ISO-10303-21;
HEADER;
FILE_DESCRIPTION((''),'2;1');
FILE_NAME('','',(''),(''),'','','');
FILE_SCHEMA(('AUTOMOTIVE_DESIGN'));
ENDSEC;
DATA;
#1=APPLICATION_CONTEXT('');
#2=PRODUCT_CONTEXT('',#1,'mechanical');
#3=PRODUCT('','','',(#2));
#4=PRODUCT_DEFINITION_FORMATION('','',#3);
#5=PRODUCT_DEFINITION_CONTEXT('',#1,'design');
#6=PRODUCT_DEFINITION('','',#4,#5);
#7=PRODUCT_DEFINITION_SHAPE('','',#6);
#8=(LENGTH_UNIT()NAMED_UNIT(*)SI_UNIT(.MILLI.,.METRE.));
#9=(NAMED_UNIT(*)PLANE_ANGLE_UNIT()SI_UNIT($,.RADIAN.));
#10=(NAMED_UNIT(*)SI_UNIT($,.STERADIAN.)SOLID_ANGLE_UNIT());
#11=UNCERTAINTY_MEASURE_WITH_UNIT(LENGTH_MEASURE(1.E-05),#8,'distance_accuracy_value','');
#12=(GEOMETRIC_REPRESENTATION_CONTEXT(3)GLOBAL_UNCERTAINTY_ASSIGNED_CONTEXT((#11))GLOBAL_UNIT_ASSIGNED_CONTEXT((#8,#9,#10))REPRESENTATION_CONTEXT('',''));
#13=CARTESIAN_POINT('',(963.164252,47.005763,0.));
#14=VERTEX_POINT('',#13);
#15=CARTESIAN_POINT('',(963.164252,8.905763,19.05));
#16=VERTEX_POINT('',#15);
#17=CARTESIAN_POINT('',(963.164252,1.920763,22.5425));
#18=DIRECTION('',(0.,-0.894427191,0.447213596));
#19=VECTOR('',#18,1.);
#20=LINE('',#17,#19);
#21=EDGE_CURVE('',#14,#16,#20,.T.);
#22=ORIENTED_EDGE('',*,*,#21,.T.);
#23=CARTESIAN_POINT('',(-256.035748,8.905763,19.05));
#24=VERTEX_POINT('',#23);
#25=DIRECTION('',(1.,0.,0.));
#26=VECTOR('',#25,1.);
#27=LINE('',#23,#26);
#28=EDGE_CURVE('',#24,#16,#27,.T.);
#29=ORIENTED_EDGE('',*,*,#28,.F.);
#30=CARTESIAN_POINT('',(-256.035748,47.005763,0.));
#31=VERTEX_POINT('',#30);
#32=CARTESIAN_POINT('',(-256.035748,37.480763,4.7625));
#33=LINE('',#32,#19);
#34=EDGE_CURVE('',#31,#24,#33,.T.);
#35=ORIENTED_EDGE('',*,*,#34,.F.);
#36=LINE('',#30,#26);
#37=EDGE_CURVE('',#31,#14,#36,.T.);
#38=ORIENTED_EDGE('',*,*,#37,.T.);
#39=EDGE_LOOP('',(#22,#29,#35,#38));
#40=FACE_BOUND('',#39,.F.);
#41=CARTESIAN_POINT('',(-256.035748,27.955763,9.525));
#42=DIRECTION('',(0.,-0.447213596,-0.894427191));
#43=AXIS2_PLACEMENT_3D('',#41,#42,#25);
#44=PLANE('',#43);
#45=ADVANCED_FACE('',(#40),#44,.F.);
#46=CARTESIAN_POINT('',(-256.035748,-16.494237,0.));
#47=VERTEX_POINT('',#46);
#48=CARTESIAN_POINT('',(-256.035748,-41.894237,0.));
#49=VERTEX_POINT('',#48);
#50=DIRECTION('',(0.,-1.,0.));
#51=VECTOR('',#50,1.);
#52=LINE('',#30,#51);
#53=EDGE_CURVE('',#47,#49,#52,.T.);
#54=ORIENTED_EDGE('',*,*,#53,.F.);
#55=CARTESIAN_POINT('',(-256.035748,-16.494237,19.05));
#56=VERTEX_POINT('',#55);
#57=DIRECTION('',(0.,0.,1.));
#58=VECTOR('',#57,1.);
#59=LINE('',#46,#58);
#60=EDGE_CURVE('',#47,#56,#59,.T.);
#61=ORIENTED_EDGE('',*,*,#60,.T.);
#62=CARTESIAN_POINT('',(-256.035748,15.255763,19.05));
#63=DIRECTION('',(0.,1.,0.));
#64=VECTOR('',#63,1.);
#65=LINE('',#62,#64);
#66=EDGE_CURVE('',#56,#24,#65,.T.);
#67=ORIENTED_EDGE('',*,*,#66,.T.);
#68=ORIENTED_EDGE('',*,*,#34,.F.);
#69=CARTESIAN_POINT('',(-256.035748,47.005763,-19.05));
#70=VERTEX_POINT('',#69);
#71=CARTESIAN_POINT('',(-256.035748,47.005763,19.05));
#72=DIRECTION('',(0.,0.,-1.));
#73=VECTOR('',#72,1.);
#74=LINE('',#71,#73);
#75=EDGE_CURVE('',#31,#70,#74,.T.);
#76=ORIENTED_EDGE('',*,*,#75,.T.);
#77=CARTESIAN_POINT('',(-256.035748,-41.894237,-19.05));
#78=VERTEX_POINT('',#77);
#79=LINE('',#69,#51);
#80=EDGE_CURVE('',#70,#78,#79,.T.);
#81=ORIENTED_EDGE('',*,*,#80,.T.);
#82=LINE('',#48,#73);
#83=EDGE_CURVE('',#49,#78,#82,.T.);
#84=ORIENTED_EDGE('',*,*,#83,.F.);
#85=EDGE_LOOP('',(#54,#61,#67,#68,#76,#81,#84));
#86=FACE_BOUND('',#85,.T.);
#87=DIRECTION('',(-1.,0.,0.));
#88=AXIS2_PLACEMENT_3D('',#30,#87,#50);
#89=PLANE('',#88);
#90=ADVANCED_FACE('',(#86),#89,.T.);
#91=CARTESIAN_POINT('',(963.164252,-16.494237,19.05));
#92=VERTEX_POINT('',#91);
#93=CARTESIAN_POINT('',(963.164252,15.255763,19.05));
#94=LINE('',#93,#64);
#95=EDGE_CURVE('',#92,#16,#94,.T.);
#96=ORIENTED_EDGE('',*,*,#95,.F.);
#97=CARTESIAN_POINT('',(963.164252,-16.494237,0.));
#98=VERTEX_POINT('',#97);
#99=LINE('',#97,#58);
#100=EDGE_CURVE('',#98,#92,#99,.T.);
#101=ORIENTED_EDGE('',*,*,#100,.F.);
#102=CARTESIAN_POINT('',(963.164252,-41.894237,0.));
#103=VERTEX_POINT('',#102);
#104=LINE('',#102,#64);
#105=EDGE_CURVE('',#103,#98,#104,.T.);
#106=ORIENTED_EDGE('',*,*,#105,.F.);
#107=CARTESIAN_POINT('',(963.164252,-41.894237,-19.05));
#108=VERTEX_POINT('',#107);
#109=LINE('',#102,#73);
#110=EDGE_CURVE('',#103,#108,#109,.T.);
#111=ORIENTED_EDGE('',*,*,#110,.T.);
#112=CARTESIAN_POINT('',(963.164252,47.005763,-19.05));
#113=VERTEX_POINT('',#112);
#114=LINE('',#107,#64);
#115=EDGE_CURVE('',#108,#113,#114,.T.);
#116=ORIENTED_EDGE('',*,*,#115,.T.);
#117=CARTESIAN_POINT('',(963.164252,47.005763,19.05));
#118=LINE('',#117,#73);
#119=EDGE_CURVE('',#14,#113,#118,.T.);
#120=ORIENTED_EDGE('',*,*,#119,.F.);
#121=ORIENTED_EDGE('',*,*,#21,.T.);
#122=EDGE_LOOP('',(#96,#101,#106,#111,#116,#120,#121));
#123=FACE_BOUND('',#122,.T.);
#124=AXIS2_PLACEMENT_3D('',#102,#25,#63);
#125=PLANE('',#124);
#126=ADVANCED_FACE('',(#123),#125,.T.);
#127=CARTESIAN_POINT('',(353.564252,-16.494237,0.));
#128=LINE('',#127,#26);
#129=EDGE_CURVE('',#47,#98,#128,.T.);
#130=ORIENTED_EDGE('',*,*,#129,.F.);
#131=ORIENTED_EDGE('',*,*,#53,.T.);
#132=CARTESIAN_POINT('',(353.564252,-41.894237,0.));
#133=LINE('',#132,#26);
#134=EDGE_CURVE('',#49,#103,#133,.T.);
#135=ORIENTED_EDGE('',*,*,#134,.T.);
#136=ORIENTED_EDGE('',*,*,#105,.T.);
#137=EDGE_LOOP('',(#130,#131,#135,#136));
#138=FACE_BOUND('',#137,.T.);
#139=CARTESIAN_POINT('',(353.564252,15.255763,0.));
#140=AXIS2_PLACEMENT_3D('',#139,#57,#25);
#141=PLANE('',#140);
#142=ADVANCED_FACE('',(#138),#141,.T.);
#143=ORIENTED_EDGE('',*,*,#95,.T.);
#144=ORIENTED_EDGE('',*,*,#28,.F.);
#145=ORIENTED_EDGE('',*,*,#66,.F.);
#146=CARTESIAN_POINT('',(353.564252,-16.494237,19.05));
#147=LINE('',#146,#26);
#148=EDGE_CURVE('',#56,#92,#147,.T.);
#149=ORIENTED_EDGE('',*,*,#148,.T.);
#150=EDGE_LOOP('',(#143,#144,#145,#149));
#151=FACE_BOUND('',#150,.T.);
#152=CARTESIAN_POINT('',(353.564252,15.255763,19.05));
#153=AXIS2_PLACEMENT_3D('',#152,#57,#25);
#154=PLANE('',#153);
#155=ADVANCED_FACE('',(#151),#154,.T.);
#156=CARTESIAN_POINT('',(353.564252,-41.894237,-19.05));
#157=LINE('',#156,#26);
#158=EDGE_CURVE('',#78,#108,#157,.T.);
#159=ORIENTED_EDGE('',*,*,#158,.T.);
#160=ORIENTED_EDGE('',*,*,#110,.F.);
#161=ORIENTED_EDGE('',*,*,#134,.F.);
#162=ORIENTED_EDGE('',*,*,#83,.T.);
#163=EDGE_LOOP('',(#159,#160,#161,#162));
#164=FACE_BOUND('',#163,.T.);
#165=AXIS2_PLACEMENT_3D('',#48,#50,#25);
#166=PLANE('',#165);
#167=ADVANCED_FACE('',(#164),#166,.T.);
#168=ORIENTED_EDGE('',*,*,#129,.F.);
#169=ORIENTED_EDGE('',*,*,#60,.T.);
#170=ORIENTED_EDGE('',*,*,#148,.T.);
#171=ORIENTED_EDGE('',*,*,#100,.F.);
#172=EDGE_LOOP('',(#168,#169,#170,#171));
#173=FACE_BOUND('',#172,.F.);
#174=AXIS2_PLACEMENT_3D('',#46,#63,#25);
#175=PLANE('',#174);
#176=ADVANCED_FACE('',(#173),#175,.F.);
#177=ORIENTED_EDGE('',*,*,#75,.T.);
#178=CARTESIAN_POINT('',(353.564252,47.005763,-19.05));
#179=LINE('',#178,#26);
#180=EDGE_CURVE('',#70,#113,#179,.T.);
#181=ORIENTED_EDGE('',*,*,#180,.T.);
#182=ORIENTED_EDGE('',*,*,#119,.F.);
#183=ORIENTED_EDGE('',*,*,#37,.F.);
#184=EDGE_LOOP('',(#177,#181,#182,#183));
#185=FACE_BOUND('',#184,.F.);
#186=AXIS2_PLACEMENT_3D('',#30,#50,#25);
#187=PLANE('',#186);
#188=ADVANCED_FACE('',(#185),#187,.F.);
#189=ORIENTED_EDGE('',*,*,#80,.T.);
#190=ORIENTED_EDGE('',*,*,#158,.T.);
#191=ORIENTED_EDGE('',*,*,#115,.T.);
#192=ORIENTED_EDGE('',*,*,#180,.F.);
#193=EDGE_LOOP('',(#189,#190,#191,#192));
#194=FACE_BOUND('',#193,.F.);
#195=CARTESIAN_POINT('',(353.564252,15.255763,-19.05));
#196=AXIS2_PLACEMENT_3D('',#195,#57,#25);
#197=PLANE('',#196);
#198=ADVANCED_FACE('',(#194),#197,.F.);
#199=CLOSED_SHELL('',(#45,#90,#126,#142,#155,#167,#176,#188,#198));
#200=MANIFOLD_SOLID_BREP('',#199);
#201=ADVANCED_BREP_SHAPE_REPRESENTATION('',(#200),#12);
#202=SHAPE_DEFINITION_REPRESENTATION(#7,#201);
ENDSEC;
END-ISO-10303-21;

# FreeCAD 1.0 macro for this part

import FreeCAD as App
import Part
import Sketcher

V = App.Vector
Q = App.Units.Quantity


def edges_at(feature, points):
    """Names of the edges that pass closest to the given points."""
    edges = feature.Shape.Edges
    near = lambda p: min(range(len(edges)), key=lambda i: edges[i].distToShape(Part.Vertex(*p))[0])
    return sorted({f"Edge{near(p) + 1}" for p in points})

doc = App.newDocument("Part")
body = doc.addObject("PartDesign::Body", "Body")

sketch1 = body.newObject("Sketcher::SketchObject", "Sketch")
sketch1.AttachmentSupport = (doc.getObject("XY_Plane"), [""])
sketch1.MapMode = "FlatFace"
sketch1.addGeometry([
    Part.LineSegment(V(-256.035748, 47.005763, 0), V(-256.035748, -16.494237, 0)),
    Part.LineSegment(V(-256.035748, -16.494237, 0), V(963.164252, -16.494237, 0)),
    Part.LineSegment(V(963.164252, -16.494237, 0), V(963.164252, 47.005763, 0)),
    Part.LineSegment(V(963.164252, 47.005763, 0), V(-256.035748, 47.005763, 0)),
], False)
sketch1.addConstraint([
    Sketcher.Constraint("Coincident", 0, 2, 1, 1),
    Sketcher.Constraint("Coincident", 1, 2, 2, 1),
    Sketcher.Constraint("Coincident", 2, 2, 3, 1),
    Sketcher.Constraint("Coincident", 3, 2, 0, 1),
    Sketcher.Constraint("Vertical", 0),
    Sketcher.Constraint("Horizontal", 1),
    Sketcher.Constraint("Vertical", 2),
    Sketcher.Constraint("Horizontal", 3),
    Sketcher.Constraint("DistanceX", 1, 1, 1, 2, Q("48 in")),
    Sketcher.Constraint("DistanceY", 0, 2, 0, 1, Q("2.5 in")),
    Sketcher.Constraint("DistanceX", 0, 2, -1, 1, 256.035748),
    Sketcher.Constraint("DistanceY", 0, 2, -1, 1, 16.494237),
])
pad1 = body.newObject("PartDesign::Pad", "Pad")
pad1.Profile = sketch1
pad1.Length = Q("0.75 in")

sketch2 = body.newObject("Sketcher::SketchObject", "Sketch001")
sketch2.AttachmentSupport = (doc.getObject("XY_Plane"), [""])
sketch2.MapMode = "FlatFace"
sketch2.addGeometry([
    Part.LineSegment(V(-256.035748, 47.005763, 0), V(-256.035748, -41.894237, 0)),
    Part.LineSegment(V(-256.035748, -41.894237, 0), V(963.164252, -41.894237, 0)),
    Part.LineSegment(V(963.164252, -41.894237, 0), V(963.164252, 47.005763, 0)),
    Part.LineSegment(V(963.164252, 47.005763, 0), V(-256.035748, 47.005763, 0)),
], False)
sketch2.addConstraint([
    Sketcher.Constraint("Coincident", 0, 2, 1, 1),
    Sketcher.Constraint("Coincident", 1, 2, 2, 1),
    Sketcher.Constraint("Coincident", 2, 2, 3, 1),
    Sketcher.Constraint("Coincident", 3, 2, 0, 1),
    Sketcher.Constraint("Vertical", 0),
    Sketcher.Constraint("Horizontal", 1),
    Sketcher.Constraint("Vertical", 2),
    Sketcher.Constraint("Horizontal", 3),
    Sketcher.Constraint("DistanceX", 1, 1, 1, 2, Q("48 in")),
    Sketcher.Constraint("DistanceY", 0, 2, 0, 1, Q("3.5 in")),
    Sketcher.Constraint("DistanceX", 0, 2, -1, 1, 256.035748),
    Sketcher.Constraint("DistanceY", 0, 2, -1, 1, 41.894237),
])
pad2 = body.newObject("PartDesign::Pad", "Pad001")
pad2.Profile = sketch2
pad2.Length = Q("0.75 in")
pad2.Reversed = True
doc.recompute()

chamfer = body.newObject("PartDesign::Chamfer", "Chamfer")
chamfer.Base = (pad2, edges_at(pad2, [(353.564, 47.006, 19.05)]))
chamfer.ChamferType = "Two distances"
chamfer.Size = Q("0.75 in")
chamfer.Size2 = Q("1.5 in")
chamfer.FlipDirection = True

doc.recompute()
